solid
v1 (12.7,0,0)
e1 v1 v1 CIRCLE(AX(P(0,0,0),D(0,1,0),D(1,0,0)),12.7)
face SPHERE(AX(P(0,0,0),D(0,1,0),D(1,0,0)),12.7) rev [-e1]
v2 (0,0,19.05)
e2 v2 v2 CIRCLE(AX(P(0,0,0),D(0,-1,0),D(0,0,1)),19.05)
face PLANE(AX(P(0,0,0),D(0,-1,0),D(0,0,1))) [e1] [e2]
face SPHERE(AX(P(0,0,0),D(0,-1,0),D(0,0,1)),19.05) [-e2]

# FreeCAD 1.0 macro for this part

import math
import FreeCAD as App
import Part
import Sketcher

V = App.Vector
Q = App.Units.Quantity

doc = App.newDocument("Part")
body = doc.addObject("PartDesign::Body", "Body")

sketch1 = body.newObject("Sketcher::SketchObject", "Sketch")
sketch1.AttachmentSupport = (doc.getObject("XZ_Plane"), [""])
sketch1.MapMode = "FlatFace"
sketch1.addGeometry(Part.LineSegment(V(0, 19, 0), V(0, -19, 0)), False)
sketch1.addGeometry(Part.ArcOfCircle(Part.Circle(V(0, 0, 0), V(0, 0, 1), 19), math.radians(90), math.radians(270)), False)
sketch1.addConstraint(Sketcher.Constraint("Coincident", 0, 1, 1, 1))
sketch1.addConstraint(Sketcher.Constraint("Coincident", 1, 2, 0, 2))
sketch1.addConstraint(Sketcher.Constraint("Vertical", 0))
sketch1.addConstraint(Sketcher.Constraint("Coincident", 1, 3, -1, 1))
sketch1.addConstraint(Sketcher.Constraint("PointOnObject", 0, 1, -2))
sketch1.addConstraint(Sketcher.Constraint("Radius", 1, Q("0.75 in")))
revolution = body.newObject("PartDesign::Revolution", "Revolution")
revolution.Profile = sketch1
revolution.ReferenceAxis = (sketch1, ["V_Axis"])
revolution.Angle = 180
revolution.Reversed = True

sketch2 = body.newObject("Sketcher::SketchObject", "Sketch001")
sketch2.AttachmentSupport = (doc.getObject("XZ_Plane"), [""])
sketch2.MapMode = "FlatFace"
sketch2.addGeometry(Part.LineSegment(V(-13, 0, 0), V(13, 0, 0)), False)
sketch2.addGeometry(Part.ArcOfCircle(Part.Circle(V(0, 0, 0), V(0, 0, 1), 13), math.radians(0), math.radians(180)), False)
sketch2.addConstraint(Sketcher.Constraint("Coincident", 0, 1, 1, 2))
sketch2.addConstraint(Sketcher.Constraint("Coincident", 1, 1, 0, 2))
sketch2.addConstraint(Sketcher.Constraint("Horizontal", 0))
sketch2.addConstraint(Sketcher.Constraint("Coincident", 1, 3, -1, 1))
sketch2.addConstraint(Sketcher.Constraint("PointOnObject", 0, 1, -1))
sketch2.addConstraint(Sketcher.Constraint("Radius", 1, Q("0.5 in")))
groove = body.newObject("PartDesign::Groove", "Groove")
groove.Profile = sketch2
groove.ReferenceAxis = (sketch2, ["H_Axis"])
groove.Angle = 180
groove.Reversed = True

doc.recompute()
